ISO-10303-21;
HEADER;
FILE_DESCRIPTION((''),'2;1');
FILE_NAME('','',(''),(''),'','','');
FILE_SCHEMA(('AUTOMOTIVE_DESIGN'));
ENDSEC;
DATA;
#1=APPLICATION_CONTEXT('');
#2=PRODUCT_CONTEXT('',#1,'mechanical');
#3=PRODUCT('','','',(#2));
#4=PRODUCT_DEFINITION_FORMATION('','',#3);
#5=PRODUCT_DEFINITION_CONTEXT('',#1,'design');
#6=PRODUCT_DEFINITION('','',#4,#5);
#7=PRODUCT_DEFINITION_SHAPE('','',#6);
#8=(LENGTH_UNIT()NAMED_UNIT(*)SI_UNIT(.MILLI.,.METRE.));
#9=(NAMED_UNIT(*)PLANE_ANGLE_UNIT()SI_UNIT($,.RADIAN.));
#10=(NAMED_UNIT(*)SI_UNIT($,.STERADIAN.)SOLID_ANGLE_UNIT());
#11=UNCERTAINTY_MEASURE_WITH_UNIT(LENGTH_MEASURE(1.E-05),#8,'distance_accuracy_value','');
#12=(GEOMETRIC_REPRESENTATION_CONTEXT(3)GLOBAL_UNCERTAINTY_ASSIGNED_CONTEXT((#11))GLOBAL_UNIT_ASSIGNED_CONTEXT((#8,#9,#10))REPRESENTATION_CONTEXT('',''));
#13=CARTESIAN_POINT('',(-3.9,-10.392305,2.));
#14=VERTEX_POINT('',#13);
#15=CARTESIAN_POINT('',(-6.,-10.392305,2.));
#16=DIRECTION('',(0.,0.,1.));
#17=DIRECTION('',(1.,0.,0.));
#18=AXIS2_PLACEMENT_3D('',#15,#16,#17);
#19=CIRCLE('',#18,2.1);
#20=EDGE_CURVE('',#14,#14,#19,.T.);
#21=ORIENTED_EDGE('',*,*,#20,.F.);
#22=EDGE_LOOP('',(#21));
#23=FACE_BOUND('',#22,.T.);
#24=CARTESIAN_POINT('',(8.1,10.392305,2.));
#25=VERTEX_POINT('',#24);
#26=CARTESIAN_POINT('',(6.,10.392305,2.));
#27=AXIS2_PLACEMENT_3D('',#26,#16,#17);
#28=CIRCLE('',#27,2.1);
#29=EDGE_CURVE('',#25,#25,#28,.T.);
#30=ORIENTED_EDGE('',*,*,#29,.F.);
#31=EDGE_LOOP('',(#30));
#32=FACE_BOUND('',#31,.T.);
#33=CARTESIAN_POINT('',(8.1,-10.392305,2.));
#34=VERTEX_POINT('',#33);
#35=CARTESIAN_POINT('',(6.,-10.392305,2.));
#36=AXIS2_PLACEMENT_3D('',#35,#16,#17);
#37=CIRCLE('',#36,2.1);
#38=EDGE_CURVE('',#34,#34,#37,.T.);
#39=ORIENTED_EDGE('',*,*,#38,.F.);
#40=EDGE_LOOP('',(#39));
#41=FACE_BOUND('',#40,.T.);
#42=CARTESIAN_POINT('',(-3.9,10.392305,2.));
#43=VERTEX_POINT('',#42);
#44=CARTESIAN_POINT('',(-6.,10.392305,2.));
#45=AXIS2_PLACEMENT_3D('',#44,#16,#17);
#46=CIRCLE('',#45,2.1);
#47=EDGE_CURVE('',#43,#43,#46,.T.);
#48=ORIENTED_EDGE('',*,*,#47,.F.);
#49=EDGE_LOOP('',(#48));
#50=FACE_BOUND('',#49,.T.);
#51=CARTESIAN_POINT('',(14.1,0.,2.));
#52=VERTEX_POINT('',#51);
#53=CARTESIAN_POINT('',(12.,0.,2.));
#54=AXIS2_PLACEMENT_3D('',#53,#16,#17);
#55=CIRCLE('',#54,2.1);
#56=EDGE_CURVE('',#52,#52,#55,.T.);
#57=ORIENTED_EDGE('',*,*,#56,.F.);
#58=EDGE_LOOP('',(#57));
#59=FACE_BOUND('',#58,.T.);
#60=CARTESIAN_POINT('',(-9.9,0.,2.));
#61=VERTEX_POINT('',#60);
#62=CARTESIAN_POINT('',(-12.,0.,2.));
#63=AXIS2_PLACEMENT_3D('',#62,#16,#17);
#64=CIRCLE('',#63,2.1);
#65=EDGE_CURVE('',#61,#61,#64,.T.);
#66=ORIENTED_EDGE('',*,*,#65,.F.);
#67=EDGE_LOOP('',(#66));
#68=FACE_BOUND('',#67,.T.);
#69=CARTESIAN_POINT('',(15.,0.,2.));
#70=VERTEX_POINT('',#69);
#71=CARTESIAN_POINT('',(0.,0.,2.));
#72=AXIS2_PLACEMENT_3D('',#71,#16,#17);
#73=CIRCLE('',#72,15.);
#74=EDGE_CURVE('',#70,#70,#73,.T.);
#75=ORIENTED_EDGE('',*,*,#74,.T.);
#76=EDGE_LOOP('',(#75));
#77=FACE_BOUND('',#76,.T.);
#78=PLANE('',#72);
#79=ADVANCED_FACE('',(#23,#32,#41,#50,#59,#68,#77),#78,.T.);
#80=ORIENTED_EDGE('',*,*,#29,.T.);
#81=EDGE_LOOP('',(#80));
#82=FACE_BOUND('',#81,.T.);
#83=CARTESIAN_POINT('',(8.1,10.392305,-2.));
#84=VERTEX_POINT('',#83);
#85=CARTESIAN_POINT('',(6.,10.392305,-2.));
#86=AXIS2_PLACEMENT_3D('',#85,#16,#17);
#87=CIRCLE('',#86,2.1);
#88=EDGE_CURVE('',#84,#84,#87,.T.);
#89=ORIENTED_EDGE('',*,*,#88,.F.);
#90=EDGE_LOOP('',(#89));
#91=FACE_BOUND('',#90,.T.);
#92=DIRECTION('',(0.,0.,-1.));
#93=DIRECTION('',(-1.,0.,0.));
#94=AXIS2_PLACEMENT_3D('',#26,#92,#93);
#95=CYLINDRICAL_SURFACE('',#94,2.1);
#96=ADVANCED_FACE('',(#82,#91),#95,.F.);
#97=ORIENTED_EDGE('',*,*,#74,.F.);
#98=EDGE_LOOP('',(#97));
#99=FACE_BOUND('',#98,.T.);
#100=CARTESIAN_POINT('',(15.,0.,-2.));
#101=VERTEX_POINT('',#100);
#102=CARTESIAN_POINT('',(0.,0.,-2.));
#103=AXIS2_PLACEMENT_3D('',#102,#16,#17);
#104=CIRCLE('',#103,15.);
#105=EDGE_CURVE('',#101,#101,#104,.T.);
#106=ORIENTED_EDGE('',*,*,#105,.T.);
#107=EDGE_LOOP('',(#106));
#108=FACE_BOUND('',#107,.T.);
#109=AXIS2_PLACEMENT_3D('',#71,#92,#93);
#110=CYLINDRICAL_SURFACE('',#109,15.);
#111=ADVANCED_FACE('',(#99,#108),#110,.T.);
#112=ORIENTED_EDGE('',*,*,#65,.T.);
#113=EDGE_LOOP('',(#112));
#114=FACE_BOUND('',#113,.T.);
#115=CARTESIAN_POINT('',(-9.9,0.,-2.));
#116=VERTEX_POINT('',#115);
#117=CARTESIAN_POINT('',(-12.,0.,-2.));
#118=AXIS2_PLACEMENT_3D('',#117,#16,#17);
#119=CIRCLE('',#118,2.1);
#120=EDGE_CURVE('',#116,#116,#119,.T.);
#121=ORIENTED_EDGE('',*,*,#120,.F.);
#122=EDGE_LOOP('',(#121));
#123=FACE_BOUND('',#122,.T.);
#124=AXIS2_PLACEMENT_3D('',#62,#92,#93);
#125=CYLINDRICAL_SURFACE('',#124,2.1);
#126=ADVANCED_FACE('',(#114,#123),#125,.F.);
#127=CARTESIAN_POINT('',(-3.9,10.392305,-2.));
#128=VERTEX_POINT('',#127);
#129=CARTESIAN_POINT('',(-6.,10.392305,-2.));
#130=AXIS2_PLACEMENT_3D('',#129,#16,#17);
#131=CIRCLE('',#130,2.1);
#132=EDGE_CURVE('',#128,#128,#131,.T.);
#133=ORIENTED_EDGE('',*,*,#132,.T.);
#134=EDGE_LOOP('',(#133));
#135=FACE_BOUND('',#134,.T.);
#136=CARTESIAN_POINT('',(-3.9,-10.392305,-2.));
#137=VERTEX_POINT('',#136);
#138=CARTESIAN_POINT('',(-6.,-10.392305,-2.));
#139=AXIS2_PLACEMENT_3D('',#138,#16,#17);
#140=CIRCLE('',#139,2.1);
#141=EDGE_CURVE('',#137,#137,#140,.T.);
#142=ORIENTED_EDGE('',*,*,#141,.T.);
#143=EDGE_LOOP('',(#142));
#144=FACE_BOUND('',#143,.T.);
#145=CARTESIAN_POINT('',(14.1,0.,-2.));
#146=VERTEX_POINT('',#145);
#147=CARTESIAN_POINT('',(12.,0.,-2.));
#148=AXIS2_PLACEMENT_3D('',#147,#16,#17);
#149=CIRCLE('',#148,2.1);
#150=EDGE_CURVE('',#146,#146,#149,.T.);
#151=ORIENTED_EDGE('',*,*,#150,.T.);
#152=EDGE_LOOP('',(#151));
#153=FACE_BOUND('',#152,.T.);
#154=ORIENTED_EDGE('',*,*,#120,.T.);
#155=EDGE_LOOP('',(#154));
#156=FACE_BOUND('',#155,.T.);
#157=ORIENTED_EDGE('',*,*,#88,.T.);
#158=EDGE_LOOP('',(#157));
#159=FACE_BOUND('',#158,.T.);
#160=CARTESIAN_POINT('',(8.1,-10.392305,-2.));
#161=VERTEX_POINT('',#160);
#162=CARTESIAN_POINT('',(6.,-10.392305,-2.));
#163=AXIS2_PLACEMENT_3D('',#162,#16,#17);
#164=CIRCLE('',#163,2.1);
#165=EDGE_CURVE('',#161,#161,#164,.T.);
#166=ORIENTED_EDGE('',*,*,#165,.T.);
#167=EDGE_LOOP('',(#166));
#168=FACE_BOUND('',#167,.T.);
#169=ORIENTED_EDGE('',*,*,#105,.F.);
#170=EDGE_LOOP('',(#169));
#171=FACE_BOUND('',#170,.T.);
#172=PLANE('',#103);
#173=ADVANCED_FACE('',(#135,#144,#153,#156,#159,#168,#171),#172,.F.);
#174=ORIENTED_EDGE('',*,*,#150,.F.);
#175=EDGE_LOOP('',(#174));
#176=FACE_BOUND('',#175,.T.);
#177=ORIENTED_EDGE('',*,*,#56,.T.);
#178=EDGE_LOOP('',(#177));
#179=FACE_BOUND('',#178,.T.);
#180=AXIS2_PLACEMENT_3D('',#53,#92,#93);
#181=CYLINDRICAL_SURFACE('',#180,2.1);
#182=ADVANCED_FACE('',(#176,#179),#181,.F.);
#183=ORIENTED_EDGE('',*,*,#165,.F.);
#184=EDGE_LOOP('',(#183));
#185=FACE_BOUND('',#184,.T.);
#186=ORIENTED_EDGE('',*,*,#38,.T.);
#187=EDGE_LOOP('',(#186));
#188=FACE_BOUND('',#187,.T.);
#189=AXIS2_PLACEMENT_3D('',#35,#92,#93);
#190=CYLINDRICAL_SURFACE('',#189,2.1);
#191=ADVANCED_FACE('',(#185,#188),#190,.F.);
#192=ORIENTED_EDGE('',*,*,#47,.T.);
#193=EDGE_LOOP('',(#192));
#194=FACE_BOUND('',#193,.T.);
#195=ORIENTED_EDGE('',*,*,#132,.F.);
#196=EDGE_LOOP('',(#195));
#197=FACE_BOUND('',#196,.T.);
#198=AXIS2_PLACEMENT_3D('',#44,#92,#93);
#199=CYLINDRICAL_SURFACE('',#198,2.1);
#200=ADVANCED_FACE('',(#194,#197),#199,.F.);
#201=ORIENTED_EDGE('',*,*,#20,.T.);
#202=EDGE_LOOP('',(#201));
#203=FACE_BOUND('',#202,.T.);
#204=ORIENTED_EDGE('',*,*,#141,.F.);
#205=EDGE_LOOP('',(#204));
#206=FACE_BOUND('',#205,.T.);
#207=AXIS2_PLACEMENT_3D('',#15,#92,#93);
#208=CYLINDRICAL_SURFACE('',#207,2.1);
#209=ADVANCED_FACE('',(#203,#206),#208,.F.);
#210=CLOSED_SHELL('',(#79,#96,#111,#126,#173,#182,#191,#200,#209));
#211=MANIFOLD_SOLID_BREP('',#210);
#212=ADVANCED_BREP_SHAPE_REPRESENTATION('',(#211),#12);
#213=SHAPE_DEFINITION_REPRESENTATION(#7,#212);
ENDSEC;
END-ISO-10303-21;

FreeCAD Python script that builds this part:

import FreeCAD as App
import Part
import Sketcher

V = App.Vector
Q = App.Units.Quantity

doc = App.newDocument("Part")
params = doc.addObject("Spreadsheet::Sheet", "Params")
for row, (alias, value) in enumerate([
    ("sketch1_diameter", "30 mm"),
    ("sketch1_diameter2", "4.2 mm"),
    ("pad1_length", "4 mm"),
], start=1):
    params.set(f"A{row}", alias)
    params.set(f"B{row}", "=" + value)
    params.setAlias(f"B{row}", alias)

body = doc.addObject("PartDesign::Body", "Body")

# Sketch on XY plane
sketch1 = body.newObject("Sketcher::SketchObject", "Sketch")
sketch1.AttachmentSupport = (doc.getObject("XY_Plane"), [""])
sketch1.MapMode = "FlatFace"
sketch1.addGeometry(Part.Circle(V(0, 0, 0), V(0, 0, 1), 15), False)
sketch1.addGeometry(Part.Circle(V(-6, -10.4, 0), V(0, 0, 1), 2.1), False)
sketch1.addGeometry(Part.Circle(V(-12, 0, 0), V(0, 0, 1), 2.1), False)
sketch1.addGeometry(Part.Circle(V(6, -10.4, 0), V(0, 0, 1), 2.1), False)
sketch1.addGeometry(Part.Circle(V(-6, 10.4, 0), V(0, 0, 1), 2.1), False)
sketch1.addGeometry(Part.Circle(V(12, 0, 0), V(0, 0, 1), 2.1), False)
sketch1.addGeometry(Part.Circle(V(6, 10.4, 0), V(0, 0, 1), 2.1), False)
sketch1.addConstraint(Sketcher.Constraint("Coincident", 0, 3, -1, 1))
sketch1.addConstraint(Sketcher.Constraint("Equal", 1, 2))
sketch1.addConstraint(Sketcher.Constraint("Equal", 2, 3))
sketch1.addConstraint(Sketcher.Constraint("Equal", 3, 4))
sketch1.addConstraint(Sketcher.Constraint("Equal", 4, 5))
sketch1.addConstraint(Sketcher.Constraint("Equal", 5, 6))
sketch1.addConstraint(Sketcher.Constraint("Symmetric", 3, 3, 4, 3, -1, 1))
sketch1.addConstraint(Sketcher.Constraint("Symmetric", 2, 3, 5, 3, -1, 1))
sketch1.addConstraint(Sketcher.Constraint("Symmetric", 1, 3, 6, 3, -1, 1))
sketch1.addConstraint(Sketcher.Constraint("Symmetric", 1, 3, 3, 3, -2))
sketch1.addConstraint(Sketcher.Constraint("PointOnObject", 2, 3, -1))
sketch1.addConstraint(Sketcher.Constraint("Diameter", 0, Q("30 mm")))
sketch1.addConstraint(Sketcher.Constraint("Diameter", 1, Q("4.2 mm")))
sketch1.addConstraint(Sketcher.Constraint("DistanceX", 1, 3, -1, 1, Q("6 mm")))
sketch1.addConstraint(Sketcher.Constraint("DistanceX", 2, 3, -1, 1, Q("12 mm")))
sketch1.addConstraint(Sketcher.Constraint("DistanceY", 1, 3, 4, 3, Q("20.78461 mm")))
sketch1.setExpression("Constraints[11]", "Params.sketch1_diameter")
sketch1.setExpression("Constraints[12]", "Params.sketch1_diameter2")
pad1 = body.newObject("PartDesign::Pad", "Pad")
pad1.Profile = sketch1
pad1.setExpression("Length", "Params.pad1_length")
pad1.Midplane = True

doc.recompute()
